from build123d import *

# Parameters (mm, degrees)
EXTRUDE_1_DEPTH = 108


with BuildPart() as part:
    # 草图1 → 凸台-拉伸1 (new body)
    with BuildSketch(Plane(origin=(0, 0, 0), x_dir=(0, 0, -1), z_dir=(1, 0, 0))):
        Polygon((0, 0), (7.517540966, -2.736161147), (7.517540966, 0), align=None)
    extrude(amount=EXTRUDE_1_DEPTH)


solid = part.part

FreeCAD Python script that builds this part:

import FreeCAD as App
import Part
import Sketcher

V = App.Vector
Q = App.Units.Quantity


def add_polygon(sketch, points):
    """Adds a closed chain of lines whose ends are joined by coincident constraints."""
    first, n = sketch.GeometryCount, len(points)
    for a, b in zip(points, points[1:] + points[:1]):
        sketch.addGeometry(Part.LineSegment(App.Vector(*a, 0), App.Vector(*b, 0)), False)
    for i in range(n):
        sketch.addConstraint(Sketcher.Constraint("Coincident", first + i, 2, first + (i + 1) % n, 1))

doc = App.newDocument("Part")
params = doc.addObject("Spreadsheet::Sheet", "Params")
for row, (alias, value) in enumerate([
    ("sketch1_length", "8 mm"),
    ("pad1_length", "108 mm"),
], start=1):
    params.set(f"A{row}", alias)
    params.set(f"B{row}", "=" + value)
    params.setAlias(f"B{row}", alias)

body = doc.addObject("PartDesign::Body", "Body")

# Sketch on YZ plane
sketch1 = body.newObject("Sketcher::SketchObject", "Sketch")
sketch1.AttachmentSupport = (doc.getObject("YZ_Plane"), [""])
sketch1.MapMode = "FlatFace"
add_polygon(sketch1, [(0, 0), (-2.7, -7.5), (0, -7.5)])  # lines 0-2
sketch1.addConstraint([
    Sketcher.Constraint("Horizontal", 1),
    Sketcher.Constraint("Vertical", 2),
    Sketcher.Constraint("Coincident", 2, 2, -1, 1),
    Sketcher.Constraint("Angle", 0, Q("-110 deg")),
    Sketcher.Constraint("Distance", 0, 8.0),
])
sketch1.setExpression("Constraints[7]", "Params.sketch1_length")
pad1 = body.newObject("PartDesign::Pad", "Pad")
pad1.Profile = sketch1
pad1.setExpression("Length", "Params.pad1_length")

doc.recompute()
